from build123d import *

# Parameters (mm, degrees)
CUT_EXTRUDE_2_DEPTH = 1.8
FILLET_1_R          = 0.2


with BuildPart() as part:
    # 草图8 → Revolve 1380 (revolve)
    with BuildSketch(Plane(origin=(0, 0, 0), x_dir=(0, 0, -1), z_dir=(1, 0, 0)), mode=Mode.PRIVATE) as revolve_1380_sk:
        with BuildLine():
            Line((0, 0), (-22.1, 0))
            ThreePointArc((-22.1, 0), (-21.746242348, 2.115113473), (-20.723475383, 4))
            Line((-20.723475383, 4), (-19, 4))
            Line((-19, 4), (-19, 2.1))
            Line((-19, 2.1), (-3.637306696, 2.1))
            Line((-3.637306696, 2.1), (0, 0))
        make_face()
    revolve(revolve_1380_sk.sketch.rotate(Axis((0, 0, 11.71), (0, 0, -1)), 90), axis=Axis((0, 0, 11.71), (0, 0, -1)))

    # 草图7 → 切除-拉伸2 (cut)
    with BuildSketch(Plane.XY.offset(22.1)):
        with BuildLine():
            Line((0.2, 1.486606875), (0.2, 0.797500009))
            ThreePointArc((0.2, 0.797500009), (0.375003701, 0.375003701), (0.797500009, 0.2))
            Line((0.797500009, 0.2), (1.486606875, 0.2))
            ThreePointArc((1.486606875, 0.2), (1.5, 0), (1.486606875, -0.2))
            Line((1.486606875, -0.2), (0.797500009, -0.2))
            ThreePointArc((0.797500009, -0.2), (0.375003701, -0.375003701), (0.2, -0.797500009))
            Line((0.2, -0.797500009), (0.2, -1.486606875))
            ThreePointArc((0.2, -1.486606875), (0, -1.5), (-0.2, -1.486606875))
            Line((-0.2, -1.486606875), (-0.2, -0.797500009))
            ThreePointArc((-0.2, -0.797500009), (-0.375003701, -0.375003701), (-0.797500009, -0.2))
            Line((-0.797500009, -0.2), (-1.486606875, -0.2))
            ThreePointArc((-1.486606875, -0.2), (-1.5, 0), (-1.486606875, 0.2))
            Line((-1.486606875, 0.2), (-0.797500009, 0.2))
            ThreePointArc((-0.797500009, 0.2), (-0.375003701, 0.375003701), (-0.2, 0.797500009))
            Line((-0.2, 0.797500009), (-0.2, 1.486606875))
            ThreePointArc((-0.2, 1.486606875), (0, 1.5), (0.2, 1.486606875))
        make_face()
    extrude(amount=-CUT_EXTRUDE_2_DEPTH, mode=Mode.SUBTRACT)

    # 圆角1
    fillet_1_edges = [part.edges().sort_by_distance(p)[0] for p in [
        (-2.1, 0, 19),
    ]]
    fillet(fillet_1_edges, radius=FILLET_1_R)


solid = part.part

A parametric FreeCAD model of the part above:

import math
import FreeCAD as App
import Part
import Sketcher
from FreeCAD import Vector
Q = App.Units.Quantity


def edges_at(feature, points):
    """Names of the edges that pass closest to the given points."""
    edges = feature.Shape.Edges
    near = lambda p: min(range(len(edges)), key=lambda i: edges[i].distToShape(Part.Vertex(*p))[0])
    return sorted({f"Edge{near(p) + 1}" for p in points})

doc = App.newDocument("Part")
body = doc.addObject("PartDesign::Body", "Body")

# Sketch on YZ plane
sketch1 = body.newObject("Sketcher::SketchObject", "Sketch")
sketch1.AttachmentSupport = (doc.getObject("YZ_Plane"), [""])
sketch1.MapMode = "FlatFace"
sketch1.addGeometry([
    Part.LineSegment(Vector(0, 22.1, 0), Vector(0, 0, 0)),  # 0
    Part.LineSegment(Vector(0, 0, 0), Vector(2.1, 3.6, 0)),  # 1
    Part.LineSegment(Vector(2.1, 3.6, 0), Vector(2.1, 19, 0)),  # 2
    Part.LineSegment(Vector(2.1, 19, 0), Vector(4, 19, 0)),  # 3
    Part.LineSegment(Vector(4, 19, 0), Vector(4, 20.7, 0)),  # 4
    Part.ArcOfCircle(Part.Circle(Vector(0, 15.6, 0), Vector(0, 0, 1), 6.5), math.radians(52), math.radians(90)),  # 5
], False)
sketch1.addConstraint([
    Sketcher.Constraint("Coincident", 0, 2, 1, 1),
    Sketcher.Constraint("Coincident", 1, 2, 2, 1),
    Sketcher.Constraint("Coincident", 2, 2, 3, 1),
    Sketcher.Constraint("Coincident", 3, 2, 4, 1),
    Sketcher.Constraint("Coincident", 4, 2, 5, 1),
    Sketcher.Constraint("Coincident", 5, 2, 0, 1),
    Sketcher.Constraint("Vertical", 0),
    Sketcher.Constraint("Vertical", 2),
    Sketcher.Constraint("Horizontal", 3),
    Sketcher.Constraint("Vertical", 4),
    Sketcher.Constraint("Coincident", 0, 2, -1, 1),
    Sketcher.Constraint("PointOnObject", 5, 3, -2),
    Sketcher.Constraint("Radius", 5, Q("6.5 mm")),
    Sketcher.Constraint("Angle", 1, Q("60 deg")),
    Sketcher.Constraint("DistanceX", 3, 1, 3, 2, Q("1.9 mm")),
    Sketcher.Constraint("DistanceY", 0, 2, 0, 1, Q("22.1 mm")),
    Sketcher.Constraint("DistanceY", -1, 1, 2, 2, Q("19 mm")),
    Sketcher.Constraint("DistanceX", -1, 1, 3, 2, Q("4 mm")),
])
revolution = body.newObject("PartDesign::Revolution", "Revolution")
revolution.Profile = sketch1
revolution.ReferenceAxis = (sketch1, ["V_Axis"])
revolution.Angle = 360

# Sketch on XY plane
sketch2 = body.newObject("Sketcher::SketchObject", "Sketch001")
sketch2.AttachmentSupport = (doc.getObject("XY_Plane"), [""])
sketch2.MapMode = "FlatFace"
sketch2.AttachmentOffset = App.Placement(Vector(0, 0, 22.1), App.Rotation())
sketch2.addGeometry([
    Part.LineSegment(Vector(0.2, 0.8, 0), Vector(0.2, 1.49, 0)),  # 0
    Part.ArcOfCircle(Part.Circle(Vector(0, 0, 0), Vector(0, 0, 1), 1.5), math.radians(82.34), math.radians(97.66)),  # 1
    Part.LineSegment(Vector(-0.2, 1.49, 0), Vector(-0.2, 0.8, 0)),  # 2
    Part.ArcOfCircle(Part.Circle(Vector(-0.8, 0.8, 0), Vector(0, 0, 1), 0.6), math.radians(-90), math.radians(0)),  # 3
    Part.LineSegment(Vector(-0.8, 0.2, 0), Vector(-1.49, 0.2, 0)),  # 4
    Part.ArcOfCircle(Part.Circle(Vector(0, 0, 0), Vector(0, 0, 1), 1.5), math.radians(172.34), math.radians(187.66)),  # 5
    Part.LineSegment(Vector(-1.49, -0.2, 0), Vector(-0.8, -0.2, 0)),  # 6
    Part.ArcOfCircle(Part.Circle(Vector(-0.8, -0.8, 0), Vector(0, 0, 1), 0.6), math.radians(0), math.radians(90)),  # 7
    Part.LineSegment(Vector(-0.2, -0.8, 0), Vector(-0.2, -1.49, 0)),  # 8
    Part.ArcOfCircle(Part.Circle(Vector(0, 0, 0), Vector(0, 0, 1), 1.5), math.radians(-97.66), math.radians(-82.34)),  # 9
    Part.LineSegment(Vector(0.2, -1.49, 0), Vector(0.2, -0.8, 0)),  # 10
    Part.ArcOfCircle(Part.Circle(Vector(0.8, -0.8, 0), Vector(0, 0, 1), 0.6), math.radians(90), math.radians(180)),  # 11
    Part.LineSegment(Vector(0.8, -0.2, 0), Vector(1.49, -0.2, 0)),  # 12
    Part.ArcOfCircle(Part.Circle(Vector(0, 0, 0), Vector(0, 0, 1), 1.5), math.radians(-7.66), math.radians(7.66)),  # 13
    Part.LineSegment(Vector(1.49, 0.2, 0), Vector(0.8, 0.2, 0)),  # 14
    Part.ArcOfCircle(Part.Circle(Vector(0.8, 0.8, 0), Vector(0, 0, 1), 0.6), math.radians(180), math.radians(270)),  # 15
], False)
sketch2.addConstraint([
    Sketcher.Constraint("Coincident", 0, 2, 1, 1),
    Sketcher.Constraint("Coincident", 1, 2, 2, 1),
    Sketcher.Constraint("Tangent", 2, 2, 3, 2),
    Sketcher.Constraint("Tangent", 3, 1, 4, 1),
    Sketcher.Constraint("Coincident", 4, 2, 5, 1),
    Sketcher.Constraint("Coincident", 5, 2, 6, 1),
    Sketcher.Constraint("Tangent", 6, 2, 7, 2),
    Sketcher.Constraint("Tangent", 7, 1, 8, 1),
    Sketcher.Constraint("Coincident", 8, 2, 9, 1),
    Sketcher.Constraint("Coincident", 9, 2, 10, 1),
    Sketcher.Constraint("Tangent", 10, 2, 11, 2),
    Sketcher.Constraint("Tangent", 11, 1, 12, 1),
    Sketcher.Constraint("Coincident", 12, 2, 13, 1),
    Sketcher.Constraint("Coincident", 13, 2, 14, 1),
    Sketcher.Constraint("Tangent", 14, 2, 15, 2),
    Sketcher.Constraint("Tangent", 15, 1, 0, 1),
    Sketcher.Constraint("Vertical", 0),
    Sketcher.Constraint("Vertical", 2),
    Sketcher.Constraint("Horizontal", 4),
    Sketcher.Constraint("Horizontal", 6),
    Sketcher.Constraint("Vertical", 8),
    Sketcher.Constraint("Vertical", 10),
    Sketcher.Constraint("Horizontal", 12),
    Sketcher.Constraint("Horizontal", 14),
    Sketcher.Constraint("Coincident", 1, 3, -1, 1),
    Sketcher.Constraint("Coincident", 5, 3, -1, 1),
    Sketcher.Constraint("Coincident", 9, 3, -1, 1),
    Sketcher.Constraint("Coincident", 13, 3, -1, 1),
    Sketcher.Constraint("Equal", 1, 5),
    Sketcher.Constraint("Equal", 3, 7),
    Sketcher.Constraint("Equal", 5, 9),
    Sketcher.Constraint("Equal", 7, 11),
    Sketcher.Constraint("Equal", 9, 13),
    Sketcher.Constraint("Equal", 11, 15),
    Sketcher.Constraint("Symmetric", 3, 3, 11, 3, -1, 1),
    Sketcher.Constraint("Symmetric", 7, 3, 15, 3, -1, 1),
    Sketcher.Constraint("Symmetric", 7, 3, 11, 3, -2),
    Sketcher.Constraint("Equal", 14, 0),
    Sketcher.Constraint("Radius", 1, Q("1.5 mm")),
    Sketcher.Constraint("DistanceX", -1, 1, 0, 2, Q("0.2 mm")),
    Sketcher.Constraint("Radius", 3, Q("0.5975 mm")),
])
pocket1 = body.newObject("PartDesign::Pocket", "Pocket")
pocket1.Profile = sketch2
pocket1.Length = 1.8
doc.recompute()

fillet = body.newObject("PartDesign::Fillet", "Fillet")
fillet.Base = (pocket1, edges_at(pocket1, [(-2.1, 0, 19)]))
fillet.Radius = 0.2

doc.recompute()
